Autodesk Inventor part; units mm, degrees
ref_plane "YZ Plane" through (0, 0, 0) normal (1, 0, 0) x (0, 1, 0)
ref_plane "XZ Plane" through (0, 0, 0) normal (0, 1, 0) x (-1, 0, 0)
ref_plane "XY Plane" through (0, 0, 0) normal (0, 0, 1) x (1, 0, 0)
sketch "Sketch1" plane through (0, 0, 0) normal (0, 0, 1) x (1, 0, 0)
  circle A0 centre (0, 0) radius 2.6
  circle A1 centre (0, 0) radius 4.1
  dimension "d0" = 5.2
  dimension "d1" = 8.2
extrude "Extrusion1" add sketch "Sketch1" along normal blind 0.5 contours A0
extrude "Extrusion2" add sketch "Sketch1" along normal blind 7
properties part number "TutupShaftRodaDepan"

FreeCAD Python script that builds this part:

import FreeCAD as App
import Part
import Sketcher

doc = App.newDocument("Part")
params = doc.addObject("Spreadsheet::Sheet", "Params")
for row, (alias, value) in enumerate([
    ("sketch1_diameter", "5.2 mm"),
    ("pad1_length", "0.5 mm"),
    ("sketch2_diameter", "8.2 mm"),
    ("sketch2_diameter2", "5.2 mm"),
    ("pad2_length", "7 mm"),
], start=1):
    params.set(f"A{row}", alias)
    params.set(f"B{row}", "=" + value)
    params.setAlias(f"B{row}", alias)

body = doc.addObject("PartDesign::Body", "Body")

# Sketch on XY plane
sketch1 = body.newObject("Sketcher::SketchObject", "Sketch")
sketch1.AttachmentSupport = (doc.getObject("XY_Plane"), [""])
sketch1.MapMode = "FlatFace"
sketch1.addGeometry(Part.Circle(App.Vector(0, 0, 0), App.Vector(0, 0, 1), 2.6), False)
sketch1.addConstraint(Sketcher.Constraint("Coincident", 0, 3, -1, 1))
sketch1.addConstraint(Sketcher.Constraint("Diameter", 0, 5.2))
sketch1.setExpression("Constraints[1]", "Params.sketch1_diameter")
pad1 = body.newObject("PartDesign::Pad", "Pad")
pad1.Profile = sketch1
pad1.setExpression("Length", "Params.pad1_length")

# Sketch on XY plane
sketch2 = body.newObject("Sketcher::SketchObject", "Sketch001")
sketch2.AttachmentSupport = (doc.getObject("XY_Plane"), [""])
sketch2.MapMode = "FlatFace"
sketch2.addGeometry(Part.Circle(App.Vector(0, 0, 0), App.Vector(0, 0, 1), 4.1), False)
sketch2.addGeometry(Part.Circle(App.Vector(0, 0, 0), App.Vector(0, 0, 1), 2.6), False)
sketch2.addConstraint(Sketcher.Constraint("Coincident", 0, 3, -1, 1))
sketch2.addConstraint(Sketcher.Constraint("Coincident", 1, 3, -1, 1))
sketch2.addConstraint(Sketcher.Constraint("Diameter", 0, 8.2))
sketch2.addConstraint(Sketcher.Constraint("Diameter", 1, 5.2))
sketch2.setExpression("Constraints[2]", "Params.sketch2_diameter")
sketch2.setExpression("Constraints[3]", "Params.sketch2_diameter2")
pad2 = body.newObject("PartDesign::Pad", "Pad001")
pad2.Profile = sketch2
pad2.setExpression("Length", "Params.pad2_length")

doc.recompute()
